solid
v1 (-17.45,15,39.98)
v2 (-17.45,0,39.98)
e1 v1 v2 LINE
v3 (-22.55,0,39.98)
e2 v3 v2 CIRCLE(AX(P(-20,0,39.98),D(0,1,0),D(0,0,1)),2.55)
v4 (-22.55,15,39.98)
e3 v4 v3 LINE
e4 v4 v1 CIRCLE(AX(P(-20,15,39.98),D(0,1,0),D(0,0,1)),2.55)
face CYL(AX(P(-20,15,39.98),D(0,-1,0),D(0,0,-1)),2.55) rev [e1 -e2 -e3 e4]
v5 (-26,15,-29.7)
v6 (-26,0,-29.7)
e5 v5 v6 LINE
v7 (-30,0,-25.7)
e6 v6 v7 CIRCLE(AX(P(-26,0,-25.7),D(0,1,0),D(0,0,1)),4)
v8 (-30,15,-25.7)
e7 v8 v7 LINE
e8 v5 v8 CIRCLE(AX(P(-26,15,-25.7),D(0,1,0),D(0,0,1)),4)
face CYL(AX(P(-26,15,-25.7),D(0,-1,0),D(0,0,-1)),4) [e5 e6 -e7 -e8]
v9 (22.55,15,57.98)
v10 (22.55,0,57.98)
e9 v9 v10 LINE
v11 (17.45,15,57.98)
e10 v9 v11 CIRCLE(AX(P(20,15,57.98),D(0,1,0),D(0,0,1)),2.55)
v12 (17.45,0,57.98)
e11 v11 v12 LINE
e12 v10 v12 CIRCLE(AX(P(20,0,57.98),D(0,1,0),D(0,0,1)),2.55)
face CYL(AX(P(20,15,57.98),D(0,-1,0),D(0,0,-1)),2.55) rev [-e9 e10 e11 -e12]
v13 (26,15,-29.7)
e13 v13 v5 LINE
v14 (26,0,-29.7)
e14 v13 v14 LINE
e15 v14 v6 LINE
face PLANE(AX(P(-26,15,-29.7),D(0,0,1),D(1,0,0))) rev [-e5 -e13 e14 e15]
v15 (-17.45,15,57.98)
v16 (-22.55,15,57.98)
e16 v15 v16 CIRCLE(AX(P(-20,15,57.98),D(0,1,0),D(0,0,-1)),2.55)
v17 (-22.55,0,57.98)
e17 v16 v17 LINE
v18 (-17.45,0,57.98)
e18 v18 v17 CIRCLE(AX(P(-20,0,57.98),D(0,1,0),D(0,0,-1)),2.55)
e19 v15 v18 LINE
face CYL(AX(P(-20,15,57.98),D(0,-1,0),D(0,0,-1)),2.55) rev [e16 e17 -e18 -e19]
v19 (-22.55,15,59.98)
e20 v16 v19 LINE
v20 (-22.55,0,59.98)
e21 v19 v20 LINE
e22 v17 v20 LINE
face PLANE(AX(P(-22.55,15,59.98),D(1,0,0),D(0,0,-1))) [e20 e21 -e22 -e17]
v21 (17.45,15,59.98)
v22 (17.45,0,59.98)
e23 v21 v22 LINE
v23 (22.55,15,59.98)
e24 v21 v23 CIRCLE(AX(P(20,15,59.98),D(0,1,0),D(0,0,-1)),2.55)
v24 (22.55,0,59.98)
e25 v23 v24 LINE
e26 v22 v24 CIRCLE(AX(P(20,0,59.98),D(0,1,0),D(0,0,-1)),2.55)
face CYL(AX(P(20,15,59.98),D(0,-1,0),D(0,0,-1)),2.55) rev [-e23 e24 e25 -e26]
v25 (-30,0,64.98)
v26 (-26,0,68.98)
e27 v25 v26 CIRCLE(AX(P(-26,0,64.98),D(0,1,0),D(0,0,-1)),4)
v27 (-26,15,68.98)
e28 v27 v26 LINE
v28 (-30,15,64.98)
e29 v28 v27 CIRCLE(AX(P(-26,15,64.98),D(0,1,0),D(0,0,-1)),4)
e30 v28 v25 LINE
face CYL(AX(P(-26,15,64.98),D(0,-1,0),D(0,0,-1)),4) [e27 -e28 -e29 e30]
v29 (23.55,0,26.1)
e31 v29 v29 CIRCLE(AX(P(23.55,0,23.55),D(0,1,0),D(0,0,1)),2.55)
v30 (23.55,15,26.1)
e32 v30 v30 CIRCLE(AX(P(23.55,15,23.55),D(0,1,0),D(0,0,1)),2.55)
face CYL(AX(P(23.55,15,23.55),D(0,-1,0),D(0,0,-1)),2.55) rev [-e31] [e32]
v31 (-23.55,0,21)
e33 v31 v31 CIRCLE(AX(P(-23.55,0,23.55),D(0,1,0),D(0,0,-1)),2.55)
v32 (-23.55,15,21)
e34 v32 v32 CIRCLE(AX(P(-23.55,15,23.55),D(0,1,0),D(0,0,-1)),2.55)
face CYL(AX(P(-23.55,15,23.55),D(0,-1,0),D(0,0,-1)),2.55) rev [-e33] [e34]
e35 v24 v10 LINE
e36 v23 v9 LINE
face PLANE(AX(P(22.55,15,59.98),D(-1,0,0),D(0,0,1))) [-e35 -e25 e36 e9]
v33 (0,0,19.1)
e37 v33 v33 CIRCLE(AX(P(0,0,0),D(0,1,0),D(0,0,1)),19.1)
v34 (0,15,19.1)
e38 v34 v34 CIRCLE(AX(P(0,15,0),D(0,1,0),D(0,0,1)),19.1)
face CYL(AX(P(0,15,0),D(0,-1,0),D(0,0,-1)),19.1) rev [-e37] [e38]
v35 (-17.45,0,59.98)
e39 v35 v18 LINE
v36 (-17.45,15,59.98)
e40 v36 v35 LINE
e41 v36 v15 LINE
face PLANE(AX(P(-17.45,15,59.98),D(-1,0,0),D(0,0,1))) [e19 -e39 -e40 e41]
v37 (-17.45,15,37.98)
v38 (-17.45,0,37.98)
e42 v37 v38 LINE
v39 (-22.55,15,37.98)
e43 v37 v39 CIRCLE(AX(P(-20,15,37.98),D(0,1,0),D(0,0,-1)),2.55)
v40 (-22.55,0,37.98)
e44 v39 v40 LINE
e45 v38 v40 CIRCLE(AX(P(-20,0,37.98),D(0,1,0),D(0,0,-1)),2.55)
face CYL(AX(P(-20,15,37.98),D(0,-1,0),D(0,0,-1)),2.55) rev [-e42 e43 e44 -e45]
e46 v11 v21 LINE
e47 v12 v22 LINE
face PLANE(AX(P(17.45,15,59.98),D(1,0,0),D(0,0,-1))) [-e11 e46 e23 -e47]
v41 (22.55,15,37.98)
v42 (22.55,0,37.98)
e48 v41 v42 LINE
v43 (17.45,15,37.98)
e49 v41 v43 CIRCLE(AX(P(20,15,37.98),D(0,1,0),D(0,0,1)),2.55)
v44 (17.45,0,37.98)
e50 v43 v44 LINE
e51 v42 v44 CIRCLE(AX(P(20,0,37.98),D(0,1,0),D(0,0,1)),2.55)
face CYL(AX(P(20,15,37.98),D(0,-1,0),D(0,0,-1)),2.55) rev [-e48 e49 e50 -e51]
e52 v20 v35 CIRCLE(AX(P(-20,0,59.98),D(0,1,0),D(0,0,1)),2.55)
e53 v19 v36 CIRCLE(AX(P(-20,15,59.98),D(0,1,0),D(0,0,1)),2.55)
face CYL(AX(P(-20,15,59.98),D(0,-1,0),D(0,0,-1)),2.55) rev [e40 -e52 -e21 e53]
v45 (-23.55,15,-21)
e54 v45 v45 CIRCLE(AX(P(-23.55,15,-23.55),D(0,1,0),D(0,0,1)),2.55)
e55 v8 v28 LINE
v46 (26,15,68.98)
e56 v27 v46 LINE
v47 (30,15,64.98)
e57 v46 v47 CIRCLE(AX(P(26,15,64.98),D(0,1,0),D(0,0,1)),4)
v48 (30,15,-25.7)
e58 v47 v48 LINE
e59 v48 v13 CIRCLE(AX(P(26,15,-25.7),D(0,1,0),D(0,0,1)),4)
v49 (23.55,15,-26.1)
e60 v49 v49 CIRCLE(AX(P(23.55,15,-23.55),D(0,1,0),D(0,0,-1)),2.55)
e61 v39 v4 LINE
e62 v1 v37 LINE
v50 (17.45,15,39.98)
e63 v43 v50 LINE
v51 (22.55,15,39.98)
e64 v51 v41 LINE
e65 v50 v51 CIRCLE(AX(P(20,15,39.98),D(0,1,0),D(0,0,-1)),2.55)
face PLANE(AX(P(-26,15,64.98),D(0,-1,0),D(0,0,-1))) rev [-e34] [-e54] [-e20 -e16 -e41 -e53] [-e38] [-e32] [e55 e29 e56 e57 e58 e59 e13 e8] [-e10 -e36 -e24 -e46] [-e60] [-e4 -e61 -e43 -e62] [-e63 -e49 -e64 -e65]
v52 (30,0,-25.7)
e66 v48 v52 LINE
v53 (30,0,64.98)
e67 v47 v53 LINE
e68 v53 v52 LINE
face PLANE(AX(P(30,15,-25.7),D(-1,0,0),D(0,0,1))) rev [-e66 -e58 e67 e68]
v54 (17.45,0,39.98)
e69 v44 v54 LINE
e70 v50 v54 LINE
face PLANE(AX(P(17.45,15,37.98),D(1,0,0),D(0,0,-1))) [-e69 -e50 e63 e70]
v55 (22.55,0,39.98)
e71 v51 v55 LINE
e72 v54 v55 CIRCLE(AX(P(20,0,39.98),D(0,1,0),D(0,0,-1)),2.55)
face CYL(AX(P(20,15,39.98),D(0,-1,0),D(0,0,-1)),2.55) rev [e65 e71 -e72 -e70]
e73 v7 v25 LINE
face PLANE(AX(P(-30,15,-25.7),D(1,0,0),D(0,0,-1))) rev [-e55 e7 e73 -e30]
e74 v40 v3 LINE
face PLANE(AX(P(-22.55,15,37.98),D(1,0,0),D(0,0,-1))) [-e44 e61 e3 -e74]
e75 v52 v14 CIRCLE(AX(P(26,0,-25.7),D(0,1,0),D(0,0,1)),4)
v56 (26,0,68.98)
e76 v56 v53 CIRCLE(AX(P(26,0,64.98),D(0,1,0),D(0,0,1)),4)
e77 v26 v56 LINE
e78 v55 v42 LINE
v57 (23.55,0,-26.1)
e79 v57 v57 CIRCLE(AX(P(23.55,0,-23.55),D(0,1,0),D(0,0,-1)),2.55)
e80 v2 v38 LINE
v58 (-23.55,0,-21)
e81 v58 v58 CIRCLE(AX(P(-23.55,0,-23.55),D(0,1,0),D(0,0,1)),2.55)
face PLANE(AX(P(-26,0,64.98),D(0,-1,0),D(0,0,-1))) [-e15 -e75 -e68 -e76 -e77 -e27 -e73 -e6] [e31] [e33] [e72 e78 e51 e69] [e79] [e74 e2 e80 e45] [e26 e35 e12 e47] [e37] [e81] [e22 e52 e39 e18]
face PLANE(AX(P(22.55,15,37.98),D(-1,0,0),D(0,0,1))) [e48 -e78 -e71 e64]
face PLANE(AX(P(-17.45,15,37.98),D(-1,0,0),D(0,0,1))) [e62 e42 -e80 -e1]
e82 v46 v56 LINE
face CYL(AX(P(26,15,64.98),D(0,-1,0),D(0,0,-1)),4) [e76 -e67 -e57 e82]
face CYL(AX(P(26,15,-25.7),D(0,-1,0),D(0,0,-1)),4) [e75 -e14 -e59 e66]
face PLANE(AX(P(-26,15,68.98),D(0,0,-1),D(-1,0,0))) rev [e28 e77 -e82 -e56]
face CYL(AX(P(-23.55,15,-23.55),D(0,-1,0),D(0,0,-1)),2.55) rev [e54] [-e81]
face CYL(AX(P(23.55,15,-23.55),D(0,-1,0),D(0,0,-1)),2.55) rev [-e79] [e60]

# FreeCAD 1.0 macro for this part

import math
import FreeCAD as App
import Part
import Sketcher
Q = App.Units.Quantity

doc = App.newDocument("Part")
body = doc.addObject("PartDesign::Body", "Body")

# Sketch on XZ plane
sketch1 = body.newObject("Sketcher::SketchObject", "Sketch")
sketch1.AttachmentSupport = (doc.getObject("XZ_Plane"), [""])
sketch1.MapMode = "FlatFace"
sketch1.addGeometry([
    Part.LineSegment(App.Vector(26, -29.7, 0), App.Vector(-26, -29.7, 0)),  # 0
    Part.ArcOfCircle(Part.Circle(App.Vector(-26, -25.7, 0), App.Vector(0, 0, 1), 4), math.radians(180), math.radians(270)),  # 1
    Part.LineSegment(App.Vector(-30, -25.7, 0), App.Vector(-30, 64.98, 0)),  # 2
    Part.ArcOfCircle(Part.Circle(App.Vector(-26, 64.98, 0), App.Vector(0, 0, 1), 4), math.radians(90), math.radians(180)),  # 3
    Part.LineSegment(App.Vector(-26, 68.98, 0), App.Vector(26, 68.98, 0)),  # 4
    Part.ArcOfCircle(Part.Circle(App.Vector(26, 64.98, 0), App.Vector(0, 0, 1), 4), math.radians(0), math.radians(90)),  # 5
    Part.LineSegment(App.Vector(30, 64.98, 0), App.Vector(30, -25.7, 0)),  # 6
    Part.ArcOfCircle(Part.Circle(App.Vector(26, -25.7, 0), App.Vector(0, 0, 1), 4), math.radians(-90), math.radians(0)),  # 7
    Part.ArcOfCircle(Part.Circle(App.Vector(20, 59.98, 0), App.Vector(0, 0, 1), 2.55), math.radians(0), math.radians(180)),  # 8
    Part.LineSegment(App.Vector(17.45, 59.98, 0), App.Vector(17.45, 57.98, 0)),  # 9
    Part.ArcOfCircle(Part.Circle(App.Vector(20, 57.98, 0), App.Vector(0, 0, 1), 2.55), math.radians(180), math.radians(360)),  # 10
    Part.LineSegment(App.Vector(22.55, 57.98, 0), App.Vector(22.55, 59.98, 0)),  # 11
    Part.ArcOfCircle(Part.Circle(App.Vector(20, 37.98, 0), App.Vector(0, 0, 1), 2.55), math.radians(180), math.radians(360)),  # 12
    Part.LineSegment(App.Vector(22.55, 37.98, 0), App.Vector(22.55, 39.98, 0)),  # 13
    Part.ArcOfCircle(Part.Circle(App.Vector(20, 39.98, 0), App.Vector(0, 0, 1), 2.55), math.radians(0), math.radians(180)),  # 14
    Part.LineSegment(App.Vector(17.45, 39.98, 0), App.Vector(17.45, 37.98, 0)),  # 15
    Part.Circle(App.Vector(23.55, 23.55, 0), App.Vector(0, 0, 1), 2.55),  # 16
    Part.LineSegment(App.Vector(-22.55, 59.98, 0), App.Vector(-22.55, 57.98, 0)),  # 17
    Part.ArcOfCircle(Part.Circle(App.Vector(-20, 57.98, 0), App.Vector(0, 0, 1), 2.55), math.radians(180), math.radians(360)),  # 18
    Part.LineSegment(App.Vector(-17.45, 57.98, 0), App.Vector(-17.45, 59.98, 0)),  # 19
    Part.ArcOfCircle(Part.Circle(App.Vector(-20, 59.98, 0), App.Vector(0, 0, 1), 2.55), math.radians(0), math.radians(180)),  # 20
    Part.ArcOfCircle(Part.Circle(App.Vector(-20, 37.98, 0), App.Vector(0, 0, 1), 2.55), math.radians(180), math.radians(360)),  # 21
    Part.LineSegment(App.Vector(-17.45, 37.98, 0), App.Vector(-17.45, 39.98, 0)),  # 22
    Part.ArcOfCircle(Part.Circle(App.Vector(-20, 39.98, 0), App.Vector(0, 0, 1), 2.55), math.radians(0), math.radians(180)),  # 23
    Part.LineSegment(App.Vector(-22.55, 39.98, 0), App.Vector(-22.55, 37.98, 0)),  # 24
    Part.Circle(App.Vector(-23.55, 23.55, 0), App.Vector(0, 0, 1), 2.55),  # 25
    Part.Circle(App.Vector(23.55, -23.55, 0), App.Vector(0, 0, 1), 2.55),  # 26
    Part.Circle(App.Vector(0, 0, 0), App.Vector(0, 0, 1), 19.1),  # 27
    Part.Circle(App.Vector(-23.55, -23.55, 0), App.Vector(0, 0, 1), 2.55),  # 28
], False)
sketch1.addConstraint([
    Sketcher.Constraint("Tangent", 0, 2, 1, 2),
    Sketcher.Constraint("Tangent", 1, 1, 2, 1),
    Sketcher.Constraint("Tangent", 2, 2, 3, 2),
    Sketcher.Constraint("Tangent", 3, 1, 4, 1),
    Sketcher.Constraint("Tangent", 4, 2, 5, 2),
    Sketcher.Constraint("Tangent", 5, 1, 6, 1),
    Sketcher.Constraint("Tangent", 6, 2, 7, 2),
    Sketcher.Constraint("Tangent", 7, 1, 0, 1),
    Sketcher.Constraint("Tangent", 8, 2, 9, 1),
    Sketcher.Constraint("Tangent", 9, 2, 10, 1),
    Sketcher.Constraint("Tangent", 10, 2, 11, 1),
    Sketcher.Constraint("Tangent", 11, 2, 8, 1),
    Sketcher.Constraint("Tangent", 12, 2, 13, 1),
    Sketcher.Constraint("Tangent", 13, 2, 14, 1),
    Sketcher.Constraint("Tangent", 14, 2, 15, 1),
    Sketcher.Constraint("Tangent", 15, 2, 12, 1),
    Sketcher.Constraint("Tangent", 17, 2, 18, 1),
    Sketcher.Constraint("Tangent", 18, 2, 19, 1),
    Sketcher.Constraint("Tangent", 19, 2, 20, 1),
    Sketcher.Constraint("Tangent", 20, 2, 17, 1),
    Sketcher.Constraint("Tangent", 21, 2, 22, 1),
    Sketcher.Constraint("Tangent", 22, 2, 23, 1),
    Sketcher.Constraint("Tangent", 23, 2, 24, 1),
    Sketcher.Constraint("Tangent", 24, 2, 21, 1),
    Sketcher.Constraint("Horizontal", 0),
    Sketcher.Constraint("Vertical", 2),
    Sketcher.Constraint("Horizontal", 4),
    Sketcher.Constraint("Vertical", 6),
    Sketcher.Constraint("Vertical", 9),
    Sketcher.Constraint("Vertical", 11),
    Sketcher.Constraint("Vertical", 13),
    Sketcher.Constraint("Vertical", 15),
    Sketcher.Constraint("Vertical", 17),
    Sketcher.Constraint("Vertical", 19),
    Sketcher.Constraint("Vertical", 22),
    Sketcher.Constraint("Vertical", 24),
    Sketcher.Constraint("Coincident", 27, 3, -1, 1),
    Sketcher.Constraint("Equal", 1, 3),
    Sketcher.Constraint("Equal", 3, 5),
    Sketcher.Constraint("Equal", 5, 7),
    Sketcher.Constraint("Equal", 10, 12),
    Sketcher.Constraint("Equal", 14, 16),
    Sketcher.Constraint("Equal", 16, 18),
    Sketcher.Constraint("Equal", 20, 21),
    Sketcher.Constraint("Equal", 23, 25),
    Sketcher.Constraint("Equal", 25, 26),
    Sketcher.Constraint("Equal", 26, 28),
    Sketcher.Constraint("Symmetric", 25, 3, 26, 3, -1, 1),
    Sketcher.Constraint("Symmetric", 16, 3, 28, 3, -1, 1),
    Sketcher.Constraint("Symmetric", 10, 3, 18, 3, -2),
    Sketcher.Constraint("Symmetric", 12, 3, 21, 3, -2),
    Sketcher.Constraint("Symmetric", 16, 3, 25, 3, -2),
    Sketcher.Constraint("Horizontal", 8, 3, 20, 3),
    Sketcher.Constraint("Horizontal", 14, 3, 23, 3),
    Sketcher.Constraint("Vertical", 10, 3, 12, 3),
    Sketcher.Constraint("Equal", 11, 13),
    Sketcher.Constraint("Radius", 1, Q("4 mm")),
    Sketcher.Constraint("Diameter", 16, Q("5.1 mm")),
    Sketcher.Constraint("Diameter", 27, Q("38.2 mm")),
    Sketcher.Constraint("DistanceX", 0, 2, 0, 1, Q("52 mm")),
    Sketcher.Constraint("DistanceY", 9, 2, 9, 1, Q("2 mm")),
    Sketcher.Constraint("DistanceX", 1, 3, -1, 1, Q("26 mm")),
    Sketcher.Constraint("DistanceX", -1, 1, 8, 3, Q("20 mm")),
    Sketcher.Constraint("DistanceY", 8, 3, 5, 3, Q("5 mm")),
    Sketcher.Constraint("DistanceY", 12, 3, 10, 3, Q("20 mm")),
    Sketcher.Constraint("DistanceX", 12, 2, 16, 3, Q("1 mm")),
    Sketcher.Constraint("DistanceY", 2, 1, 2, 2, Q("90.68 mm")),
    Sketcher.Constraint("DistanceY", 1, 3, -1, 1, Q("25.7 mm")),
    Sketcher.Constraint("DistanceY", 26, 3, 16, 3, Q("47.1 mm")),
])
pad1 = body.newObject("PartDesign::Pad", "Pad")
pad1.Profile = sketch1
pad1.Length = 15
pad1.Reversed = True

doc.recompute()
